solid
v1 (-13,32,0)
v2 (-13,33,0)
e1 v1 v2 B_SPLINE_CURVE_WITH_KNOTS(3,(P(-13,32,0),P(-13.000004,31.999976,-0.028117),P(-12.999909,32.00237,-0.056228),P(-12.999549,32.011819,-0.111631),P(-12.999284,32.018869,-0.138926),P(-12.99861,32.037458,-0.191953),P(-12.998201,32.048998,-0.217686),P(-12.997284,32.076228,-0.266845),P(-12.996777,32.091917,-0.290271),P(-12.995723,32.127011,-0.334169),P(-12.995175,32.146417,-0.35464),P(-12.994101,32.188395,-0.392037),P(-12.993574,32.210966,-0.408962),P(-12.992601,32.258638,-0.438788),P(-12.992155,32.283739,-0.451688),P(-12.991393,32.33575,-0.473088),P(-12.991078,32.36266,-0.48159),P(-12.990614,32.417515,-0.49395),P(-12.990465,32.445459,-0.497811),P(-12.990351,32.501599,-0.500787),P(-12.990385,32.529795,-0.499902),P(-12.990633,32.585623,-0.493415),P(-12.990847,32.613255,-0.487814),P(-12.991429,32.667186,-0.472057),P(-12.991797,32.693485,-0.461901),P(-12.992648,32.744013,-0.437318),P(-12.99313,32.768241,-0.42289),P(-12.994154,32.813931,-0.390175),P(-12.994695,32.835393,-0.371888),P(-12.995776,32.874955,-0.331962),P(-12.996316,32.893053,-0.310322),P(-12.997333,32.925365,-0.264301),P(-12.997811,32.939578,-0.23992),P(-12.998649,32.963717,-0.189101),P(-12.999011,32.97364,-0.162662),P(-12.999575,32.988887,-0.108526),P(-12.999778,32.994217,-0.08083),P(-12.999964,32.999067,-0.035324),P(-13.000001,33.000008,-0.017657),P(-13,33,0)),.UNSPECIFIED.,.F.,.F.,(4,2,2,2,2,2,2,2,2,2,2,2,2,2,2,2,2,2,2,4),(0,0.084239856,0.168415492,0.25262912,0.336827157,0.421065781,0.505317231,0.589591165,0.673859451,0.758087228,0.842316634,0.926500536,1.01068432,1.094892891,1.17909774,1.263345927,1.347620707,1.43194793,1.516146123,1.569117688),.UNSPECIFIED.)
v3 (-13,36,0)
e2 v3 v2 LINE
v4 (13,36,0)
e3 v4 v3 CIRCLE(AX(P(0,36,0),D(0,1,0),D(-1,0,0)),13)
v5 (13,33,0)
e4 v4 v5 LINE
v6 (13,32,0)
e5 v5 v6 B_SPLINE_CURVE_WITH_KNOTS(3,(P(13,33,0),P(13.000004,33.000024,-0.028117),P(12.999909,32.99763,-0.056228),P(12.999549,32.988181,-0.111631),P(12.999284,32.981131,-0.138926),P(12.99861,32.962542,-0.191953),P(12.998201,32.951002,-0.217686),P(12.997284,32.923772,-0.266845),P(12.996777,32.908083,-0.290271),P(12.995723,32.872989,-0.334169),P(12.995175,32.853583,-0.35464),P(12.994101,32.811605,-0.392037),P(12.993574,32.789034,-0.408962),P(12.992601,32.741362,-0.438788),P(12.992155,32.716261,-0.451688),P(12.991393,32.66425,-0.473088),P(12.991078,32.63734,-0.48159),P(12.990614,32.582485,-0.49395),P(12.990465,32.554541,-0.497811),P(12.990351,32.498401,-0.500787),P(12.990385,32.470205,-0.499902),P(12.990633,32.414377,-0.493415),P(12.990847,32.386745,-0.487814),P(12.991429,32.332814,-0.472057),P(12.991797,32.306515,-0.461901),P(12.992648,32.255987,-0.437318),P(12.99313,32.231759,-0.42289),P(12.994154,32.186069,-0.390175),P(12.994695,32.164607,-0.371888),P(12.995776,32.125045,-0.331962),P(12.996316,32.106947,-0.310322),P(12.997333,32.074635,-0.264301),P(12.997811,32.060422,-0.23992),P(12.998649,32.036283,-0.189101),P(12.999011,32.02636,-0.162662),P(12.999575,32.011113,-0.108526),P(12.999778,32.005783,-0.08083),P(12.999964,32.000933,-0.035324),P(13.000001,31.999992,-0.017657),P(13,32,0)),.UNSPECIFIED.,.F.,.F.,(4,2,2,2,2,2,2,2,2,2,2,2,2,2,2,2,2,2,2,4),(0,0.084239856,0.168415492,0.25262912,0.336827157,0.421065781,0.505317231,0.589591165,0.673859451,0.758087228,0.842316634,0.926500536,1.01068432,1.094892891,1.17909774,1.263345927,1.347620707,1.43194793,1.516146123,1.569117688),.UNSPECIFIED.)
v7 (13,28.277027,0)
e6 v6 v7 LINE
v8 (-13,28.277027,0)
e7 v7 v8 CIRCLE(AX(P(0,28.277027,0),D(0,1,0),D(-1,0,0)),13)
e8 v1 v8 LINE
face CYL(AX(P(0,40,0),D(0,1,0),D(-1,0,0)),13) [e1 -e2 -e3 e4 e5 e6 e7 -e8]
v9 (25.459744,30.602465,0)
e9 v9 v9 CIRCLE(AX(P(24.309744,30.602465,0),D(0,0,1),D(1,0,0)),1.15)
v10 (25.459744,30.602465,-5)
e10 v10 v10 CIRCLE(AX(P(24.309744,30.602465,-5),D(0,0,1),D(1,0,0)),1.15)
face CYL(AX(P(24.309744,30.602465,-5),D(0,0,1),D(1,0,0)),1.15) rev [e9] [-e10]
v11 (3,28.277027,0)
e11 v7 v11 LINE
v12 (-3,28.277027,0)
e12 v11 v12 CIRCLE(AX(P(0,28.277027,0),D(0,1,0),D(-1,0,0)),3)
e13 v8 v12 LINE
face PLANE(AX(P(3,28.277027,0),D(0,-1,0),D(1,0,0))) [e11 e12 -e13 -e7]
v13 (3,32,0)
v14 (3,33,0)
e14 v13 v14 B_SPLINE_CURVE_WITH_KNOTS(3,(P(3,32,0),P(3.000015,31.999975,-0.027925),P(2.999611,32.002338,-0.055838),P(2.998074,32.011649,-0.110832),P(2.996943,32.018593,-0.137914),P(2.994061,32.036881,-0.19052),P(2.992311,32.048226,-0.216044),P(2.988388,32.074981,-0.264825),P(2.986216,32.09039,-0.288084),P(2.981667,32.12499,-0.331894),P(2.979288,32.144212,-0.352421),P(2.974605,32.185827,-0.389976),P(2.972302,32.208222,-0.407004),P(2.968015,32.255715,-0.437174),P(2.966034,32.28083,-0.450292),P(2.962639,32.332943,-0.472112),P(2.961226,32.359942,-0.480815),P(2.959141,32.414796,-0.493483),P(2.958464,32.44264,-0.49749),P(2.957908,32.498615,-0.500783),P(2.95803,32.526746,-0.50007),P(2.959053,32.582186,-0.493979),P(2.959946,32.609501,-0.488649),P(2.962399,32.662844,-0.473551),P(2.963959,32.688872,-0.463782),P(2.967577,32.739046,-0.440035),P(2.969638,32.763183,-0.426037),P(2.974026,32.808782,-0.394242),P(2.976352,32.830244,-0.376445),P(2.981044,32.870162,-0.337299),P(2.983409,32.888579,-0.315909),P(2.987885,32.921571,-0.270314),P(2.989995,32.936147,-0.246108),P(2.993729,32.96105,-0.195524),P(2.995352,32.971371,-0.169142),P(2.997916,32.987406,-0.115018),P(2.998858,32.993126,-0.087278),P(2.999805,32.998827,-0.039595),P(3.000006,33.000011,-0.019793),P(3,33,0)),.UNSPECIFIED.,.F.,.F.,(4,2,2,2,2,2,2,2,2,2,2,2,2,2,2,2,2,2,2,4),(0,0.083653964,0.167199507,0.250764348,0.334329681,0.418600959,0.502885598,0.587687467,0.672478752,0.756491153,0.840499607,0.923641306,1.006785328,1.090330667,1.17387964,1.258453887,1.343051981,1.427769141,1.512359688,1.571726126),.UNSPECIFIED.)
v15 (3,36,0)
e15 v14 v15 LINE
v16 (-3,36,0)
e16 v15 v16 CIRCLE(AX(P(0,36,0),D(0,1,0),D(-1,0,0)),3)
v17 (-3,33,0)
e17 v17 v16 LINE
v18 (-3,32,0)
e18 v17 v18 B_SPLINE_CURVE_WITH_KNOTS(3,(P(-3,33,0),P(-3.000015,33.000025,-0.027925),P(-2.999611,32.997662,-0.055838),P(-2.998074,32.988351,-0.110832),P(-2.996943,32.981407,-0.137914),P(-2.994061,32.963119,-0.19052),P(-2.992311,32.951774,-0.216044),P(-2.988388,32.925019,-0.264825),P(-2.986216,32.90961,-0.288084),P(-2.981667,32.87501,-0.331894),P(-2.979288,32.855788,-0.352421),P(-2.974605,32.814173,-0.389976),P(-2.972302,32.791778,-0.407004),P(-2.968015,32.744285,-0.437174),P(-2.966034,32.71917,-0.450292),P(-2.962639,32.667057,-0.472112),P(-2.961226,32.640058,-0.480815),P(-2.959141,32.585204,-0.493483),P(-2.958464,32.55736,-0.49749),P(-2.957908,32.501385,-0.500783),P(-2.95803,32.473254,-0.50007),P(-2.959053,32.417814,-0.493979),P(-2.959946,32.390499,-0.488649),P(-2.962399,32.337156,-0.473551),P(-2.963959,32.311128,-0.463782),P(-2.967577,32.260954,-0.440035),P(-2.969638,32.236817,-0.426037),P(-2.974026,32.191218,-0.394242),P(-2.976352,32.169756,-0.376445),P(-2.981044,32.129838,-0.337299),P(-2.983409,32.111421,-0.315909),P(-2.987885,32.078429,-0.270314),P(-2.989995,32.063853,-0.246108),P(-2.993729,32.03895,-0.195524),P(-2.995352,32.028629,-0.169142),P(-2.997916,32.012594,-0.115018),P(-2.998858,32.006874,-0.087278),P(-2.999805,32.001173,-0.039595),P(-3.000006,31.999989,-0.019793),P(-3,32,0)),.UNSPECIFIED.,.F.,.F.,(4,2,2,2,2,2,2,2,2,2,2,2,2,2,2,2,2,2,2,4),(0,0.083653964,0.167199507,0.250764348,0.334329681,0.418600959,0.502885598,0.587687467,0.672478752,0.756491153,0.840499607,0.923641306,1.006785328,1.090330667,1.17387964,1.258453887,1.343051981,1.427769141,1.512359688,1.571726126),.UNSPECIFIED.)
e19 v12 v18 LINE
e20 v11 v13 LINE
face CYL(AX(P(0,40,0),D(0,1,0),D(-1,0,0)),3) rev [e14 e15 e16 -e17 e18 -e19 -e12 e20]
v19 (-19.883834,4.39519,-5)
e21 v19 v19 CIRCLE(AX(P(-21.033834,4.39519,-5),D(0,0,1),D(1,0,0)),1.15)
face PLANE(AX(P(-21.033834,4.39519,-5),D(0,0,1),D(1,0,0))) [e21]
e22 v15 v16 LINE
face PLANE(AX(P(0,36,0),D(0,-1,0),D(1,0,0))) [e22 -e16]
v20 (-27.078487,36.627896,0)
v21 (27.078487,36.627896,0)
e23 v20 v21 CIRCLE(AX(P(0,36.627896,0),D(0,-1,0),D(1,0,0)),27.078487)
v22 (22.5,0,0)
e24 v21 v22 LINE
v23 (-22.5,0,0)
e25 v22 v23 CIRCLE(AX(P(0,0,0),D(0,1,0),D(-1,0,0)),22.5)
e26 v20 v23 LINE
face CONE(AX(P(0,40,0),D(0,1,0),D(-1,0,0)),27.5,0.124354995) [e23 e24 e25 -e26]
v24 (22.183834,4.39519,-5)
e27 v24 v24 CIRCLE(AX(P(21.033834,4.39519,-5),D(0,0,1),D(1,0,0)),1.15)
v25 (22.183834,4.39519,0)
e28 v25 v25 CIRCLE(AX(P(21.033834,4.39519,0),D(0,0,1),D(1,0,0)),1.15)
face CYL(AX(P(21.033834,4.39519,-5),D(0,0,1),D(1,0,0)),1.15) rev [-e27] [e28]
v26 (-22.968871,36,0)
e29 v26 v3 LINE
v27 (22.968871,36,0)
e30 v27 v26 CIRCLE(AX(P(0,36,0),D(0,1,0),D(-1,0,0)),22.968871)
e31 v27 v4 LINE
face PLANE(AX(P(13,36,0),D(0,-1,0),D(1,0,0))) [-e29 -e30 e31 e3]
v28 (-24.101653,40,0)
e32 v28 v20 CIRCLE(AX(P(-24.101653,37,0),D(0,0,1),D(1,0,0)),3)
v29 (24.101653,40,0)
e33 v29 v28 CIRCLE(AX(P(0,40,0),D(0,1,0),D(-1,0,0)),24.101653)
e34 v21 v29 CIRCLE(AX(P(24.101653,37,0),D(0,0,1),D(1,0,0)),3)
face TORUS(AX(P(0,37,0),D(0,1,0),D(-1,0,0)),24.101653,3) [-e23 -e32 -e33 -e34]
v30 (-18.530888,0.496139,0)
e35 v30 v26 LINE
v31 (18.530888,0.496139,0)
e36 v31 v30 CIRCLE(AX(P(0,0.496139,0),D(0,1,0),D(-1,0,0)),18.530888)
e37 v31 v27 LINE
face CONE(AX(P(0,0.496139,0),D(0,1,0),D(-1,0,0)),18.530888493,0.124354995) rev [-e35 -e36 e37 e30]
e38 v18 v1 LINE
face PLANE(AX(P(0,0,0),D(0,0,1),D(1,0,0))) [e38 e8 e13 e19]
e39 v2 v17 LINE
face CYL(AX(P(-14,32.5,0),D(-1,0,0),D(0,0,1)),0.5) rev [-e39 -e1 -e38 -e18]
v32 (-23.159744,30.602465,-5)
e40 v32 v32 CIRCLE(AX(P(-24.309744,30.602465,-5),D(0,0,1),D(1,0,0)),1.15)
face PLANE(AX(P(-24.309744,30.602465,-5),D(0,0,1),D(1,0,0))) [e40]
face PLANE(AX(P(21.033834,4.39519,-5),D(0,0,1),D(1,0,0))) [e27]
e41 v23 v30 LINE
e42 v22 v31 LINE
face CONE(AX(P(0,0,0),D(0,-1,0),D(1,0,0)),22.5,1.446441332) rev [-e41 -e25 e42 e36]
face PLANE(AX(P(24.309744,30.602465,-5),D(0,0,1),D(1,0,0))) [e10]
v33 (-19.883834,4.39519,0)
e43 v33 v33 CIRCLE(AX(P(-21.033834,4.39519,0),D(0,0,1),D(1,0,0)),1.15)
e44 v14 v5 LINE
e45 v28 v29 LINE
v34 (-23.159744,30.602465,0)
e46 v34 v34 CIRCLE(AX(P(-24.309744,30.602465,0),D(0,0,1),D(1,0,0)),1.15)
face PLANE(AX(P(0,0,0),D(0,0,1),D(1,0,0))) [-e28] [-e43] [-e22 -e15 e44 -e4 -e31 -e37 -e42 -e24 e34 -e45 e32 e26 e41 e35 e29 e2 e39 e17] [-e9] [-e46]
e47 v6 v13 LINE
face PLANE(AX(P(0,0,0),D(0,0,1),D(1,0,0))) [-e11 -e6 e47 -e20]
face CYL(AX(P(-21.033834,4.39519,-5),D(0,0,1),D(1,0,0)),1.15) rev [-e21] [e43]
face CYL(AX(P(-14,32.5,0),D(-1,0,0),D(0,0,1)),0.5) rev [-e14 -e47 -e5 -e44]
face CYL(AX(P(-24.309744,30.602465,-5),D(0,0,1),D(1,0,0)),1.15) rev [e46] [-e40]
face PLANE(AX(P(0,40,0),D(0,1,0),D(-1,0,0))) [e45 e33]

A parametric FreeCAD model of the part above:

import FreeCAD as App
import Part
import Sketcher

V = App.Vector


def edges_at(feature, points):
    """Names of the edges that pass closest to the given points."""
    edges = feature.Shape.Edges
    near = lambda p: min(range(len(edges)), key=lambda i: edges[i].distToShape(Part.Vertex(*p))[0])
    return sorted({f"Edge{near(p) + 1}" for p in points})

doc = App.newDocument("Part")
params = doc.addObject("Spreadsheet::Sheet", "Params")
for row, (alias, value) in enumerate([
    ("sketch1_width", "10 mm"),
    ("sketch1_width2", "3 mm"),
    ("sketch1_height", "4 mm"),
    ("sketch1_length", "4 mm"),
    ("sketch1_width3", "27.5 mm"),
    ("revolution_angle", "180 deg"),
    ("fillet_radius", "3 mm"),
    ("sketch2_width", "30 mm"),
    ("sketch2_height", "0.5 mm"),
    ("groove_angle", "360 deg"),
    ("sketch3_diameter", "2.3 mm"),
    ("pocket1_length", "5 mm"),
], start=1):
    params.set(f"A{row}", alias)
    params.set(f"B{row}", "=" + value)
    params.setAlias(f"B{row}", alias)

body = doc.addObject("PartDesign::Body", "Body")

sketch1 = doc.addObject("Sketcher::SketchObject", "Sketch")
body.addObject(sketch1)
sketch1.AttachmentSupport = (doc.XY_Plane, [""])
sketch1.MapMode = "FlatFace"
sketch1.addGeometry([
    Part.LineSegment(V(0, 40, 0), V(-27.5, 40, 0)),
    Part.LineSegment(V(-27.5, 40, 0), V(-22.5, 0, 0)),
    Part.LineSegment(V(-22.5, 0, 0), V(-18.5, 0.5, 0)),
    Part.LineSegment(V(-18.5, 0.5, 0), V(-23, 36, 0)),
    Part.LineSegment(V(-23, 36, 0), V(-13, 36, 0)),
    Part.LineSegment(V(-13, 36, 0), V(-13, 28.3, 0)),
    Part.LineSegment(V(-13, 28.3, 0), V(-3, 28.3, 0)),
    Part.LineSegment(V(-3, 28.3, 0), V(-3, 36, 0)),
    Part.LineSegment(V(-3, 36, 0), V(0, 36, 0)),
    Part.LineSegment(V(0, 36, 0), V(0, 40, 0)),
], False)
sketch1.addConstraint([
    Sketcher.Constraint("Coincident", 0, 2, 1, 1),
    Sketcher.Constraint("Coincident", 1, 2, 2, 1),
    Sketcher.Constraint("Coincident", 2, 2, 3, 1),
    Sketcher.Constraint("Coincident", 3, 2, 4, 1),
    Sketcher.Constraint("Coincident", 4, 2, 5, 1),
    Sketcher.Constraint("Coincident", 5, 2, 6, 1),
    Sketcher.Constraint("Coincident", 6, 2, 7, 1),
    Sketcher.Constraint("Coincident", 7, 2, 8, 1),
    Sketcher.Constraint("Coincident", 8, 2, 9, 1),
    Sketcher.Constraint("Coincident", 9, 2, 0, 1),
    Sketcher.Constraint("Horizontal", 0),
    Sketcher.Constraint("Horizontal", 4),
    Sketcher.Constraint("Vertical", 5),
    Sketcher.Constraint("Horizontal", 6),
    Sketcher.Constraint("Vertical", 7),
    Sketcher.Constraint("Horizontal", 8),
    Sketcher.Constraint("Vertical", 9),
    Sketcher.Constraint("PointOnObject", 1, 2, -1),
    Sketcher.Constraint("PointOnObject", 8, 2, -2),
    Sketcher.Constraint("Perpendicular", 1, 2),
    Sketcher.Constraint("Perpendicular", 2, 3),
    Sketcher.Constraint("Horizontal", 4, 2, 7, 2),
    Sketcher.Constraint("DistanceX", 6, 1, 6, 2, 10.0),
    Sketcher.Constraint("DistanceX", 8, 1, 8, 2, 3.0),
    Sketcher.Constraint("DistanceY", 9, 1, 9, 2, 4.0),
    Sketcher.Constraint("Distance", 2, 4.0),
    Sketcher.Constraint("DistanceX", 0, 2, 0, 1, 27.5),
    Sketcher.Constraint("DistanceY", -1, 1, 0, 2, 40.0),
    Sketcher.Constraint("DistanceX", 0, 2, 1, 2, 5.0),
    Sketcher.Constraint("DistanceY", 5, 2, 5, 1, 7.722973),
])
sketch1.setExpression("Constraints[22]", "Params.sketch1_width")
sketch1.setExpression("Constraints[23]", "Params.sketch1_width2")
sketch1.setExpression("Constraints[24]", "Params.sketch1_height")
sketch1.setExpression("Constraints[25]", "Params.sketch1_length")
sketch1.setExpression("Constraints[26]", "Params.sketch1_width3")
revolution = doc.addObject("PartDesign::Revolution", "Revolution")
body.addObject(revolution)
revolution.Profile = sketch1
revolution.ReferenceAxis = (sketch1, ["V_Axis"])
revolution.setExpression("Angle", "Params.revolution_angle")
revolution.Reversed = True
doc.recompute()

fillet = doc.addObject("PartDesign::Fillet", "Fillet")
body.addObject(fillet)
fillet.Base = (revolution, edges_at(revolution, [(0, 40, -27.5)]))
fillet.setExpression("Radius", "Params.fillet_radius")

sketch2 = doc.addObject("Sketcher::SketchObject", "Sketch001")
body.addObject(sketch2)
sketch2.AttachmentSupport = (doc.XY_Plane, [""])
sketch2.MapMode = "FlatFace"
sketch2.addGeometry([
    Part.LineSegment(V(-14, 33, 0), V(-14, 32.5, 0)),
    Part.LineSegment(V(-14, 32.5, 0), V(16, 32.5, 0)),
    Part.LineSegment(V(16, 32.5, 0), V(16, 33, 0)),
    Part.LineSegment(V(16, 33, 0), V(-14, 33, 0)),
], False)
sketch2.addGeometry(Part.LineSegment(V(-14, 32.5, 0), V(16, 32.5, 0)), True)
sketch2.addConstraint([
    Sketcher.Constraint("Coincident", 0, 2, 1, 1),
    Sketcher.Constraint("Coincident", 1, 2, 2, 1),
    Sketcher.Constraint("Coincident", 2, 2, 3, 1),
    Sketcher.Constraint("Coincident", 3, 2, 0, 1),
    Sketcher.Constraint("Vertical", 0),
    Sketcher.Constraint("Horizontal", 1),
    Sketcher.Constraint("Vertical", 2),
    Sketcher.Constraint("Horizontal", 3),
    Sketcher.Constraint("Horizontal", 4),
    Sketcher.Constraint("Coincident", 4, 1, 0, 2),
    Sketcher.Constraint("Vertical", 2, 2, 4, 2),
    Sketcher.Constraint("DistanceX", 1, 1, 1, 2, 30.0),
    Sketcher.Constraint("DistanceY", 0, 2, 0, 1, 0.5),
    Sketcher.Constraint("DistanceX", 0, 2, -1, 1, 14.0),
    Sketcher.Constraint("DistanceY", -1, 1, 2, 2, 33.0),
])
sketch2.setExpression("Constraints[11]", "Params.sketch2_width")
sketch2.setExpression("Constraints[12]", "Params.sketch2_height")
groove = doc.addObject("PartDesign::Groove", "Groove")
body.addObject(groove)
groove.Profile = sketch2
groove.ReferenceAxis = (sketch2, ["Axis0"])
groove.setExpression("Angle", "Params.groove_angle")

sketch3 = doc.addObject("Sketcher::SketchObject", "Sketch002")
body.addObject(sketch3)
sketch3.AttachmentSupport = (doc.XY_Plane, [""])
sketch3.MapMode = "FlatFace"
sketch3.addGeometry([
    Part.Circle(V(-24.3, 30.6, 0), V(0, 0, 1), 1.1),
    Part.Circle(V(-21, 4.4, 0), V(0, 0, 1), 1.1),
    Part.Circle(V(21, 4.4, 0), V(0, 0, 1), 1.1),
    Part.Circle(V(24.3, 30.6, 0), V(0, 0, 1), 1.1),
], False)
sketch3.addConstraint([
    Sketcher.Constraint("Equal", 0, 1),
    Sketcher.Constraint("Equal", 1, 2),
    Sketcher.Constraint("Equal", 2, 3),
    Sketcher.Constraint("Symmetric", 1, 3, 2, 3, -2),
    Sketcher.Constraint("Symmetric", 0, 3, 3, 3, -2),
    Sketcher.Constraint("Diameter", 0, 2.3),
    Sketcher.Constraint("DistanceY", -1, 1, 1, 3, 4.39519),
    Sketcher.Constraint("DistanceX", 0, 3, 1, 3, 3.275909),
    Sketcher.Constraint("DistanceX", 1, 3, 2, 3, 42.067669),
    Sketcher.Constraint("DistanceY", -1, 1, 0, 3, 30.602465),
])
sketch3.setExpression("Constraints[5]", "Params.sketch3_diameter")
pocket1 = doc.addObject("PartDesign::Pocket", "Pocket")
body.addObject(pocket1)
pocket1.Profile = sketch3
pocket1.setExpression("Length", "Params.pocket1_length")

doc.recompute()
